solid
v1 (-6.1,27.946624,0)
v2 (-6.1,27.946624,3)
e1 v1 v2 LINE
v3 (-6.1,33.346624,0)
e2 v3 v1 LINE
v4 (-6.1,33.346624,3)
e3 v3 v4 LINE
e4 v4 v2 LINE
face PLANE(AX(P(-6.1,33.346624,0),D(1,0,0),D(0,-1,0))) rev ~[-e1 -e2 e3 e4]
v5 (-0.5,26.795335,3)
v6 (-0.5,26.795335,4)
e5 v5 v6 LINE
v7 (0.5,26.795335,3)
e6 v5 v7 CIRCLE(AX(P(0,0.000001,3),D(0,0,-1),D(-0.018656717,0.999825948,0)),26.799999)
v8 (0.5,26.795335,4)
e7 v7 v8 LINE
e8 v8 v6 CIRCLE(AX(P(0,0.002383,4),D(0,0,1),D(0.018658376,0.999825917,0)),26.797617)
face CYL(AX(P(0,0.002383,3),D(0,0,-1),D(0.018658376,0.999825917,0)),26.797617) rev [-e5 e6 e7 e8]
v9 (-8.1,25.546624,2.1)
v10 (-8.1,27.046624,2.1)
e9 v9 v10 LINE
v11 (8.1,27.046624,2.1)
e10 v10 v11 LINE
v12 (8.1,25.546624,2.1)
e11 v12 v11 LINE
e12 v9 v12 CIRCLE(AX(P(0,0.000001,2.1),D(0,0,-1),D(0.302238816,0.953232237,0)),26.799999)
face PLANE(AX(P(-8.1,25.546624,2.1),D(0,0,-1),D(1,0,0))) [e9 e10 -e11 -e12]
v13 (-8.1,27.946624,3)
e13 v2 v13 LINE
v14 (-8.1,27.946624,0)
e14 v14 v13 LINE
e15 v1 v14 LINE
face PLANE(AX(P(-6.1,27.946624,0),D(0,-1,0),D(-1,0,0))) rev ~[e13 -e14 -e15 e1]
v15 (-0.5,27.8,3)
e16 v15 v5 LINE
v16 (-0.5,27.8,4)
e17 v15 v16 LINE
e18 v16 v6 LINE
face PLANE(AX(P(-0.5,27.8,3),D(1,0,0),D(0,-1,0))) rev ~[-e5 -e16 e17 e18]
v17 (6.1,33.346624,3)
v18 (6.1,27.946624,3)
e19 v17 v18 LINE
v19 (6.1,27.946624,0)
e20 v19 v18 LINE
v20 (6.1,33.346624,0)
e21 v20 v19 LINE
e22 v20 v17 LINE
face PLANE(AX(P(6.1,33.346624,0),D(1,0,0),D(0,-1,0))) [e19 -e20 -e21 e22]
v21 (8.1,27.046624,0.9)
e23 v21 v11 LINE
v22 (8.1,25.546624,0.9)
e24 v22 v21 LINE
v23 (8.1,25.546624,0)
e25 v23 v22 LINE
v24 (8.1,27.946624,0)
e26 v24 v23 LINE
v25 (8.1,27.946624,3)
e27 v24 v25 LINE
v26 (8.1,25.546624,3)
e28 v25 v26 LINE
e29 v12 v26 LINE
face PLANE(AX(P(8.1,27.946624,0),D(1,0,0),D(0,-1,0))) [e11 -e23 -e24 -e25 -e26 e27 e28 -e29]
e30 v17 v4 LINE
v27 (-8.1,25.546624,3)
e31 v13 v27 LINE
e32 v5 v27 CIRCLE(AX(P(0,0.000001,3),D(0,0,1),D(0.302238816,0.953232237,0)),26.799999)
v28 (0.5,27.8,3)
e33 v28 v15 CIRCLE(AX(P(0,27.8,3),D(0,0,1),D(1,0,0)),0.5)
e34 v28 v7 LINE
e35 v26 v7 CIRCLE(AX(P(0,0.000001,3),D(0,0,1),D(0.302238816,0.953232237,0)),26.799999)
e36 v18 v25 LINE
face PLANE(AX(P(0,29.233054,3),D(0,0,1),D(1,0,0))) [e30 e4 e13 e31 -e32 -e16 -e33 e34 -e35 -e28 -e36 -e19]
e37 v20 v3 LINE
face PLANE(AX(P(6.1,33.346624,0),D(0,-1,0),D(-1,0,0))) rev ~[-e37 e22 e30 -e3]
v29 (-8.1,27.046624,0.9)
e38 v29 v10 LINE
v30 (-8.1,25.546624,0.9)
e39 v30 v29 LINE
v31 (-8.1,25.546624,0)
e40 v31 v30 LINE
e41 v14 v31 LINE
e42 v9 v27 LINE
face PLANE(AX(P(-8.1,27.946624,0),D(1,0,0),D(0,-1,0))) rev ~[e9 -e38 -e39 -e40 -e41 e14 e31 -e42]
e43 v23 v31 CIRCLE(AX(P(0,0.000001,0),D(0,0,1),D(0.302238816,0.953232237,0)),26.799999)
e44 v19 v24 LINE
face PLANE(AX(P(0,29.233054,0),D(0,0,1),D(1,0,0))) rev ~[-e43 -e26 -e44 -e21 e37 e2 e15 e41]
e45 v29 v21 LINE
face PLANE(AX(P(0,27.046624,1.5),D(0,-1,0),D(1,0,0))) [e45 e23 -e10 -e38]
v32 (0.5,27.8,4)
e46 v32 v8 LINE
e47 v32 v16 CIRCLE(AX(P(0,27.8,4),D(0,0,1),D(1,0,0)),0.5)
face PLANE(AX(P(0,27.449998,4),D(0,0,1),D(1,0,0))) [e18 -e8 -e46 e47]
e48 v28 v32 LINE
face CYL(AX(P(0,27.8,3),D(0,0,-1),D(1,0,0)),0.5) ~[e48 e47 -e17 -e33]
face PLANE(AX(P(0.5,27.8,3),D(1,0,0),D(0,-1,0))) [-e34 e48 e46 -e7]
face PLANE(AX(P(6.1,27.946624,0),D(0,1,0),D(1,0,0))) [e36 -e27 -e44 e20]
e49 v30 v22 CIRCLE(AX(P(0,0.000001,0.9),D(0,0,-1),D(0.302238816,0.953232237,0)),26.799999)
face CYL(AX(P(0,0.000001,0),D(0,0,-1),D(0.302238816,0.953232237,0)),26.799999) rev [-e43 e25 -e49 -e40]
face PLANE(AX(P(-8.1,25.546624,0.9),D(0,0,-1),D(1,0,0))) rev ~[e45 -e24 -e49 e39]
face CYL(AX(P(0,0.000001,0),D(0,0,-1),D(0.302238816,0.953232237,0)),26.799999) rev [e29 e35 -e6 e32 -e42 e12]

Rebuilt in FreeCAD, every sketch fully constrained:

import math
import FreeCAD as App
import Part
import Sketcher

V = App.Vector
Q = App.Units.Quantity


def add_polygon(sketch, points):
    """Adds a closed chain of lines whose ends are joined by coincident constraints."""
    first, n = sketch.GeometryCount, len(points)
    for a, b in zip(points, points[1:] + points[:1]):
        sketch.addGeometry(Part.LineSegment(App.Vector(*a, 0), App.Vector(*b, 0)), False)
    for i in range(n):
        sketch.addConstraint(Sketcher.Constraint("Coincident", first + i, 2, first + (i + 1) % n, 1))

doc = App.newDocument("Part")
body = doc.addObject("PartDesign::Body", "Body")

# Sketch on XY plane
sketch1 = body.newObject("Sketcher::SketchObject", "Sketch")
sketch1.AttachmentSupport = (doc.getObject("XY_Plane"), [""])
sketch1.MapMode = "FlatFace"
sketch1.addGeometry([
    Part.LineSegment(V(6.1, 33.346624, 0), V(-6.1, 33.346624, 0)),  # 0
    Part.LineSegment(V(-6.1, 33.346624, 0), V(-6.1, 27.946624, 0)),  # 1
    Part.LineSegment(V(-6.1, 27.946624, 0), V(-8.1, 27.946624, 0)),  # 2
    Part.LineSegment(V(-8.1, 27.946624, 0), V(-8.1, 25.546624, 0)),  # 3
    Part.ArcOfCircle(Part.Circle(V(0, 0.000001, 0), V(0, 0, 1), 26.799999), math.radians(72.407879), math.radians(107.592121)),  # 4
    Part.LineSegment(V(8.1, 25.546624, 0), V(8.1, 27.946624, 0)),  # 5
    Part.LineSegment(V(8.1, 27.946624, 0), V(6.1, 27.946624, 0)),  # 6
    Part.LineSegment(V(6.1, 27.946624, 0), V(6.1, 33.346624, 0)),  # 7
], False)
sketch1.addConstraint([
    Sketcher.Constraint("Coincident", 0, 2, 1, 1),
    Sketcher.Constraint("Coincident", 1, 2, 2, 1),
    Sketcher.Constraint("Coincident", 2, 2, 3, 1),
    Sketcher.Constraint("Coincident", 3, 2, 4, 2),
    Sketcher.Constraint("Coincident", 4, 1, 5, 1),
    Sketcher.Constraint("Coincident", 5, 2, 6, 1),
    Sketcher.Constraint("Coincident", 6, 2, 7, 1),
    Sketcher.Constraint("Coincident", 7, 2, 0, 1),
    Sketcher.Constraint("Horizontal", 0),
    Sketcher.Constraint("Vertical", 1),
    Sketcher.Constraint("Horizontal", 2),
    Sketcher.Constraint("Vertical", 3),
    Sketcher.Constraint("Vertical", 5),
    Sketcher.Constraint("Horizontal", 6),
    Sketcher.Constraint("Vertical", 7),
    Sketcher.Constraint("Coincident", 4, 3, -1, 1),
    Sketcher.Constraint("Symmetric", 2, 2, 5, 2, -2),
    Sketcher.Constraint("Equal", 2, 6),
    Sketcher.Constraint("Radius", 4, Q("26.799999 mm")),
    Sketcher.Constraint("DistanceX", 2, 2, 2, 1, Q("2 mm")),
    Sketcher.Constraint("DistanceX", 0, 2, 0, 1, Q("12.2 mm")),
    Sketcher.Constraint("DistanceY", 1, 2, 1, 1, Q("5.4 mm")),
    Sketcher.Constraint("DistanceY", 3, 2, 3, 1, Q("2.4 mm")),
])
pad1 = body.newObject("PartDesign::Pad", "Pad")
pad1.Profile = sketch1
pad1.Length = 3

# Sketch on XZ plane
sketch2 = body.newObject("Sketcher::SketchObject", "Sketch001")
sketch2.AttachmentSupport = (doc.getObject("XZ_Plane"), [""])
sketch2.MapMode = "FlatFace"
sketch2.AttachmentOffset = App.Placement(V(0, 0, -25.546624), App.Rotation())
add_polygon(sketch2, [(-8.1, 2.1), (-8.1, 0.9), (8.1, 0.9), (8.1, 2.1)])  # lines 0-3
sketch2.addConstraint([
    Sketcher.Constraint("Vertical", 0),
    Sketcher.Constraint("Horizontal", 1),
    Sketcher.Constraint("Vertical", 2),
    Sketcher.Constraint("Horizontal", 3),
    Sketcher.Constraint("DistanceX", 1, 1, 1, 2, Q("16.2 mm")),
    Sketcher.Constraint("DistanceY", 0, 2, 0, 1, Q("1.2 mm")),
    Sketcher.Constraint("DistanceX", 0, 2, -1, 1, Q("8.1 mm")),
    Sketcher.Constraint("DistanceY", -1, 1, 0, 2, Q("0.9 mm")),
])
pocket1 = body.newObject("PartDesign::Pocket", "Pocket")
pocket1.Profile = sketch2
pocket1.Length = 1.5

# Sketch on XY plane
sketch3 = body.newObject("Sketcher::SketchObject", "Sketch002")
sketch3.AttachmentSupport = (doc.getObject("XY_Plane"), [""])
sketch3.MapMode = "FlatFace"
sketch3.AttachmentOffset = App.Placement(V(0, 0, 3), App.Rotation())
sketch3.addGeometry([
    Part.ArcOfCircle(Part.Circle(V(0, 27.8, 0), V(0, 0, 1), 0.5), math.radians(0), math.radians(180)),
    Part.LineSegment(V(-0.5, 27.8, 0), V(-0.5, 26.795335, 0)),
    Part.ArcOfCircle(Part.Circle(V(0, 0.002383, 0), V(0, 0, 1), 26.797617), math.radians(88.930892), math.radians(91.069108)),
    Part.LineSegment(V(0.5, 26.795335, 0), V(0.5, 27.8, 0)),
], False)
sketch3.addConstraint([
    Sketcher.Constraint("Tangent", 0, 2, 1, 1),
    Sketcher.Constraint("Coincident", 1, 2, 2, 2),
    Sketcher.Constraint("Coincident", 2, 1, 3, 1),
    Sketcher.Constraint("Tangent", 3, 2, 0, 1),
    Sketcher.Constraint("Vertical", 1),
    Sketcher.Constraint("Vertical", 3),
    Sketcher.Constraint("Symmetric", 1, 2, 2, 1, -2),
    Sketcher.Constraint("Radius", 0, Q("0.5 mm")),
    Sketcher.Constraint("DistanceY", -1, 1, 0, 3, Q("27.8 mm")),
    Sketcher.Constraint("Radius", 2, Q("26.797617 mm")),
    Sketcher.Constraint("DistanceY", 1, 2, 1, 1, Q("1.004665 mm")),
])
pad2 = body.newObject("PartDesign::Pad", "Pad001")
pad2.Profile = sketch3
pad2.Length = 1

doc.recompute()
